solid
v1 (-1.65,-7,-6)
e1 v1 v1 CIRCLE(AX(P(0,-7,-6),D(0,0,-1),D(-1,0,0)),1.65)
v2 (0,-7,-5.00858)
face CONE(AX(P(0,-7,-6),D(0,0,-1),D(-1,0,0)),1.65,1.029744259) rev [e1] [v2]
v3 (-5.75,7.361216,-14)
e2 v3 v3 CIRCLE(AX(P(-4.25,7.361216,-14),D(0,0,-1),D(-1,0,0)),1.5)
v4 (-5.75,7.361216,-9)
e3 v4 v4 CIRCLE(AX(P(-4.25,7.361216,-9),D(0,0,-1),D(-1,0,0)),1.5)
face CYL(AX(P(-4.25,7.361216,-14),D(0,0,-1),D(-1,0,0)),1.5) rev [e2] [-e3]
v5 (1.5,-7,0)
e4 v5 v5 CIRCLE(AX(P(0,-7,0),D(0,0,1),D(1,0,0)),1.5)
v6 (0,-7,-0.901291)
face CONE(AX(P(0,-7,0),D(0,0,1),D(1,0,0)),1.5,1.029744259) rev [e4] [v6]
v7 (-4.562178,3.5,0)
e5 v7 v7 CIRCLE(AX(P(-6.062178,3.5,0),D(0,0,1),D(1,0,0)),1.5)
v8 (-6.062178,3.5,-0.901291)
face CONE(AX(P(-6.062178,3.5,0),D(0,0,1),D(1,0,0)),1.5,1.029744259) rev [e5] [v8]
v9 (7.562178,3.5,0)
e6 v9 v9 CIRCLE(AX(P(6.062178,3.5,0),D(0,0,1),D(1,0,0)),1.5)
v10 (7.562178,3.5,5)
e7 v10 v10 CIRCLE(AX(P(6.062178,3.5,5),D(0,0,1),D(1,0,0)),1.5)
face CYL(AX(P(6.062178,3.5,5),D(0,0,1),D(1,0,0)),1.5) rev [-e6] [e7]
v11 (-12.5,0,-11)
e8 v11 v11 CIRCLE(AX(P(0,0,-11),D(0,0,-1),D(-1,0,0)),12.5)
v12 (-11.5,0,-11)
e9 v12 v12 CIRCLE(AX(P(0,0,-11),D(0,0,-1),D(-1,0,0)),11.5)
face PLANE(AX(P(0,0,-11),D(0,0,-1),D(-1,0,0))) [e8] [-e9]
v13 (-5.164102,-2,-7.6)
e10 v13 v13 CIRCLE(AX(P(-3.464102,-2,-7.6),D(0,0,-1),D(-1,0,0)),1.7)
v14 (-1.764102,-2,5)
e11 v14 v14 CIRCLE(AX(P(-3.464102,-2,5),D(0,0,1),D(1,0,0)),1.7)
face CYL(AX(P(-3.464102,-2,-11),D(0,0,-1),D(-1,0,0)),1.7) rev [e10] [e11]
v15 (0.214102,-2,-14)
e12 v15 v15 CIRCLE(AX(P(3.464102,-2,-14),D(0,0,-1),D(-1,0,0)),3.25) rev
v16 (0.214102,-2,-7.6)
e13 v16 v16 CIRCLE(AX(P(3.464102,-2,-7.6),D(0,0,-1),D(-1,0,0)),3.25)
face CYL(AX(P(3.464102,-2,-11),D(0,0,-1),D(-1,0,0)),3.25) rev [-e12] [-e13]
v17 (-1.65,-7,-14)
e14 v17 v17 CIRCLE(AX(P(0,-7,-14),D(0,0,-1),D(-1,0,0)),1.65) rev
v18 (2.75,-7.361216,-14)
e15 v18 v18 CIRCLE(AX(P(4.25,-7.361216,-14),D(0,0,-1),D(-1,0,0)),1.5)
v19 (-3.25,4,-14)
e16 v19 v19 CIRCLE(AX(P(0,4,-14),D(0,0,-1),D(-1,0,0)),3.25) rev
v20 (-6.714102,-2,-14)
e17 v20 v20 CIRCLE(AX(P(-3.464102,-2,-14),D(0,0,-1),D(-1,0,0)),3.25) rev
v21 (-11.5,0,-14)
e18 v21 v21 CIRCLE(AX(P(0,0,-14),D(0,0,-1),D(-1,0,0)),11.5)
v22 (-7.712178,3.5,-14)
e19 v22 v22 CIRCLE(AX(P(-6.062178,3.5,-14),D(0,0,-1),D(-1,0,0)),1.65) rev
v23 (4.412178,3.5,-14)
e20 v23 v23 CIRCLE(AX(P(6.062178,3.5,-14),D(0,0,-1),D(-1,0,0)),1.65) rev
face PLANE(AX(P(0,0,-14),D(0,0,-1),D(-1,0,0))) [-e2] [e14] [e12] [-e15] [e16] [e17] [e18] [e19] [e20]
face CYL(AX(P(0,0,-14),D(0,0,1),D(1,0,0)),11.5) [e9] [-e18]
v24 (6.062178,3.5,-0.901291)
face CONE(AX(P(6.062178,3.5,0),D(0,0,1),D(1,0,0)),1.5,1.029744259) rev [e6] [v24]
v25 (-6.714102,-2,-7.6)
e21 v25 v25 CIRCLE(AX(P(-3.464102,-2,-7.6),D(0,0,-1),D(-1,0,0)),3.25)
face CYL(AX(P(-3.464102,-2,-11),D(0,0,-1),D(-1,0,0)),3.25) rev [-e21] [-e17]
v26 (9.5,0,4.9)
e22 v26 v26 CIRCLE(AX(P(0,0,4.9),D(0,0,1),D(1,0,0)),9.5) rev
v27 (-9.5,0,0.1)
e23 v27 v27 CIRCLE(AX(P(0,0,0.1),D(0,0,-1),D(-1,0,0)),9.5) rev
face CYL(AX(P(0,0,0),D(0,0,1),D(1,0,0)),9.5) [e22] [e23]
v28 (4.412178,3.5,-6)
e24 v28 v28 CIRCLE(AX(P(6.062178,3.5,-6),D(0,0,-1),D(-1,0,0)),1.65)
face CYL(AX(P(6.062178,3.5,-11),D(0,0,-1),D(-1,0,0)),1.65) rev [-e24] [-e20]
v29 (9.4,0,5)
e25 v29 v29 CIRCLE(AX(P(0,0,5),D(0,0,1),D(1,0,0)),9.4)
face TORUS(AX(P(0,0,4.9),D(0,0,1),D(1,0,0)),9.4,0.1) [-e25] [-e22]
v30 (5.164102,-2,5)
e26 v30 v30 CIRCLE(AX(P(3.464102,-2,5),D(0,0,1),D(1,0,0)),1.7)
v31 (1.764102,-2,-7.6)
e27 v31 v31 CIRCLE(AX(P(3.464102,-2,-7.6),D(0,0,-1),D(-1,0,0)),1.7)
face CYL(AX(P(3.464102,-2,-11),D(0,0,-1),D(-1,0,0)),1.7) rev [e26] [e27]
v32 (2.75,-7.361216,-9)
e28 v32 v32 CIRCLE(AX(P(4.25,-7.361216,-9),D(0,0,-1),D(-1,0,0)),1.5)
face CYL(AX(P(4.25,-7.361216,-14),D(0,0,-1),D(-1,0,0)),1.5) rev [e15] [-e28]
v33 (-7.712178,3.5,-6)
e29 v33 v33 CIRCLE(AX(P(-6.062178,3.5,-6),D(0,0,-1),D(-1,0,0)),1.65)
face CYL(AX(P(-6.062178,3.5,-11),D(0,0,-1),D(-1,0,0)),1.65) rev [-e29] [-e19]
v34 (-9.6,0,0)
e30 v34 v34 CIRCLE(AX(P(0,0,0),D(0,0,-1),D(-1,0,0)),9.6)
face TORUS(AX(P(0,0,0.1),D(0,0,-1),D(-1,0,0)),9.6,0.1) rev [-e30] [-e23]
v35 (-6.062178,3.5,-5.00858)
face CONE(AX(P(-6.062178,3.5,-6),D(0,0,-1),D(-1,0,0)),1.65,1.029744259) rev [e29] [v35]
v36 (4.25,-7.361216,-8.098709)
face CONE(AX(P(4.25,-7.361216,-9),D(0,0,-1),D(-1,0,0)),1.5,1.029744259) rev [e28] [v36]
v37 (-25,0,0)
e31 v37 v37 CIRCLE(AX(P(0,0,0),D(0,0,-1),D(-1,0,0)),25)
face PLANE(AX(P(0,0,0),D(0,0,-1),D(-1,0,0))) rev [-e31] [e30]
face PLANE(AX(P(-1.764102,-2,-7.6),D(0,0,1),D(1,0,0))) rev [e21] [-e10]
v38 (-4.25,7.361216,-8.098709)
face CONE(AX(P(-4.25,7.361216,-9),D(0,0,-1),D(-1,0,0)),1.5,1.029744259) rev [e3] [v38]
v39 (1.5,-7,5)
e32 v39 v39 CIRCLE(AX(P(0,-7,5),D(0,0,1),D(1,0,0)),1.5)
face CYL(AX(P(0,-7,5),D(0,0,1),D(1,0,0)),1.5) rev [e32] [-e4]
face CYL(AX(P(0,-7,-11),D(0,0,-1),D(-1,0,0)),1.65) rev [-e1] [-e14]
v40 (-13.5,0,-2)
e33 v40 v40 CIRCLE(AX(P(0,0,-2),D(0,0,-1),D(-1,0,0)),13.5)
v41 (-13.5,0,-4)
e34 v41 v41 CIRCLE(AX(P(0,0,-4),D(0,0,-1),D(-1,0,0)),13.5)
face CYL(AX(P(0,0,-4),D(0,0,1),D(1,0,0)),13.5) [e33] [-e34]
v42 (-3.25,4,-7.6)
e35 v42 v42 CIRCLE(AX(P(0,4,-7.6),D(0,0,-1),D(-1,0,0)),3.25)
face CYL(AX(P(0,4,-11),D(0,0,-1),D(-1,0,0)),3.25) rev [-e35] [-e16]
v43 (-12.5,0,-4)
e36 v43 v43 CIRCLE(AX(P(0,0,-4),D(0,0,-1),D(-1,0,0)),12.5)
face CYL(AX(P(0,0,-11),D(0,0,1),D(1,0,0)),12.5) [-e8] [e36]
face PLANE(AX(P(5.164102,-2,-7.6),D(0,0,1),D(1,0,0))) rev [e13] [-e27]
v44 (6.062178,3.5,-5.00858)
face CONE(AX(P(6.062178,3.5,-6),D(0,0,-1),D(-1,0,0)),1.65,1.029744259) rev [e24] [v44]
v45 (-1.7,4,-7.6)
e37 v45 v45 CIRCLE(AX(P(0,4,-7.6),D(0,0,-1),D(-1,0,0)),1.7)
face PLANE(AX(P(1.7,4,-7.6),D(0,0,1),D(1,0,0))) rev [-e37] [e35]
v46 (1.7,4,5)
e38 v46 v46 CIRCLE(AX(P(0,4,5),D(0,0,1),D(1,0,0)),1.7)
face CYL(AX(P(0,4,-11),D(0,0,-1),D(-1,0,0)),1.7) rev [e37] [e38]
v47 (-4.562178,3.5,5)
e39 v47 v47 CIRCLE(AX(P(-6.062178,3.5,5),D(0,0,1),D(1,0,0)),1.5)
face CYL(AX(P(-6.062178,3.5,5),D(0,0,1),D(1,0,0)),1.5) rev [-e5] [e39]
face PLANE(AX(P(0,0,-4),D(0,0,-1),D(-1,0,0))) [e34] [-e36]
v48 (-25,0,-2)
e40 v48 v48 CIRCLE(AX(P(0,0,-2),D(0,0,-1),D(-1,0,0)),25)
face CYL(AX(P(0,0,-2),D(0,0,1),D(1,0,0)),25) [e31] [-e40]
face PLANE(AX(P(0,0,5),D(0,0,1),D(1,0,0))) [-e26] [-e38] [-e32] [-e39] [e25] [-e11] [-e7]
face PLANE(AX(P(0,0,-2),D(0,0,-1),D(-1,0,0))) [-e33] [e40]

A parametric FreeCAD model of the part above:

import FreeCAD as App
import Part
import Sketcher

V = App.Vector
Q = App.Units.Quantity


def edges_at(feature, points):
    """Names of the edges that pass closest to the given points."""
    edges = feature.Shape.Edges
    near = lambda p: min(range(len(edges)), key=lambda i: edges[i].distToShape(Part.Vertex(*p))[0])
    return sorted({f"Edge{near(p) + 1}" for p in points})


def add_polygon(sketch, points):
    """Adds a closed chain of lines whose ends are joined by coincident constraints."""
    first, n = sketch.GeometryCount, len(points)
    for a, b in zip(points, points[1:] + points[:1]):
        sketch.addGeometry(Part.LineSegment(App.Vector(*a, 0), App.Vector(*b, 0)), False)
    for i in range(n):
        sketch.addConstraint(Sketcher.Constraint("Coincident", first + i, 2, first + (i + 1) % n, 1))

doc = App.newDocument("Part")
body = doc.addObject("PartDesign::Body", "Body")

# Sketch on XY plane
sketch1 = doc.addObject("Sketcher::SketchObject", "Sketch")
body.addObject(sketch1)
sketch1.AttachmentSupport = (doc.XY_Plane, [""])
sketch1.MapMode = "FlatFace"
sketch1.addGeometry([
    Part.Circle(V(0, 0, 0), V(0, 0, 1), 25),
    Part.Circle(V(0, 0, 0), V(0, 0, 1), 10),
], False)
sketch1.addConstraint([
    Sketcher.Constraint("Coincident", 0, 3, -1, 1),
    Sketcher.Constraint("Coincident", 1, 3, -1, 1),
    Sketcher.Constraint("Diameter", 0, Q("50 mm")),
    Sketcher.Constraint("Diameter", 1, Q("20 mm")),
])
pad1 = doc.addObject("PartDesign::Pad", "Pad")
body.addObject(pad1)
pad1.Profile = sketch1
pad1.Length = 2
pad1.Reversed = True

# Sketch on XY plane
sketch2 = doc.addObject("Sketcher::SketchObject", "Sketch001")
body.addObject(sketch2)
sketch2.AttachmentSupport = (doc.XY_Plane, [""])
sketch2.MapMode = "FlatFace"
sketch2.AttachmentOffset = App.Placement(V(0, 0, -2), App.Rotation())
sketch2.addGeometry(Part.Circle(V(0, 0, 0), V(0, 0, 1), 14), False)
sketch2.addConstraint([
    Sketcher.Constraint("Coincident", 0, 3, -1, 1),
    Sketcher.Constraint("Diameter", 0, Q("27 mm")),
])
pad2 = doc.addObject("PartDesign::Pad", "Pad001")
body.addObject(pad2)
pad2.Profile = sketch2
pad2.Length = 2
pad2.Reversed = True

# Sketch on XY plane
sketch3 = doc.addObject("Sketcher::SketchObject", "Sketch002")
body.addObject(sketch3)
sketch3.AttachmentSupport = (doc.XY_Plane, [""])
sketch3.MapMode = "FlatFace"
sketch3.AttachmentOffset = App.Placement(V(0, 0, -4), App.Rotation())
sketch3.addGeometry(Part.Circle(V(0, 0, 0), V(0, 0, 1), 12), False)
sketch3.addConstraint([
    Sketcher.Constraint("Coincident", 0, 3, -1, 1),
    Sketcher.Constraint("Diameter", 0, Q("25 mm")),
])
pad3 = doc.addObject("PartDesign::Pad", "Pad002")
body.addObject(pad3)
pad3.Profile = sketch3
pad3.Length = 7
pad3.Reversed = True

# Sketch on XY plane
sketch4 = doc.addObject("Sketcher::SketchObject", "Sketch003")
body.addObject(sketch4)
sketch4.AttachmentSupport = (doc.XY_Plane, [""])
sketch4.MapMode = "FlatFace"
sketch4.AttachmentOffset = App.Placement(V(0, 0, -11), App.Rotation())
sketch4.addGeometry(Part.Circle(V(0, 4, 0), V(0, 0, 1), 1.7), False)
sketch4.addConstraint([
    Sketcher.Constraint("PointOnObject", 0, 3, -2),
    Sketcher.Constraint("Diameter", 0, Q("3.4 mm")),
    Sketcher.Constraint("DistanceY", -1, 1, 0, 3, Q("4 mm")),
])
doc.recompute()
hole = doc.addObject("PartDesign::Hole", "Hole")
body.addObject(hole)
hole.Profile = sketch4
hole.ThreadType = "None"
hole.Diameter = 3.4
hole.DepthType = "ThroughAll"
hole.HoleCutType = "Counterbore"
hole.HoleCutDiameter = 6.5
hole.HoleCutDepth = 3.4
hole.Reversed = True
doc.recompute()

polarpattern = doc.addObject("PartDesign::PolarPattern", "PolarPattern")
body.addObject(polarpattern)
polarpattern.Originals = [hole]
polarpattern.Axis = (doc.Z_Axis, [""])
polarpattern.Angle = 360
polarpattern.Occurrences = 3
body.Tip = polarpattern

# Sketch on YZ plane
sketch5 = doc.addObject("Sketcher::SketchObject", "Sketch004")
body.addObject(sketch5)
sketch5.AttachmentSupport = (doc.YZ_Plane, [""])
sketch5.MapMode = "FlatFace"
add_polygon(sketch5, [(-7, -5), (-7, -11), (-5.3, -11), (-5.3, -6)])  # lines 0-3
sketch5.addGeometry(Part.LineSegment(V(-7, -11, 0), V(-7, -5, 0)), True)  # axis
sketch5.addConstraint([
    Sketcher.Constraint("Vertical", 0),
    Sketcher.Constraint("Horizontal", 1),
    Sketcher.Constraint("Vertical", 2),
    Sketcher.Constraint("Vertical", 4),
    Sketcher.Constraint("Coincident", 4, 1, 0, 2),
    Sketcher.Constraint("Equal", 0, 4),
    Sketcher.Constraint("DistanceY", 2, 1, 2, 2, Q("5 mm")),
    Sketcher.Constraint("Angle", 3, Q("149 deg")),
    Sketcher.Constraint("DistanceX", 0, 2, -1, 1, Q("7 mm")),
    Sketcher.Constraint("DistanceY", 0, 2, -1, 1, Q("11 mm")),
    Sketcher.Constraint("DistanceX", 1, 1, 1, 2, Q("1.65 mm")),
])
groove = doc.addObject("PartDesign::Groove", "Groove")
body.addObject(groove)
groove.Profile = sketch5
groove.ReferenceAxis = (sketch5, ["Axis0"])
groove.Angle = 360
doc.recompute()

polarpattern2 = doc.addObject("PartDesign::PolarPattern", "PolarPattern001")
body.addObject(polarpattern2)
polarpattern2.Originals = [groove]
polarpattern2.Axis = (doc.Z_Axis, [""])
polarpattern2.Angle = 360
polarpattern2.Occurrences = 3
body.Tip = polarpattern2

# Sketch on XY plane
sketch6 = doc.addObject("Sketcher::SketchObject", "Sketch005")
body.addObject(sketch6)
sketch6.AttachmentSupport = (doc.XY_Plane, [""])
sketch6.MapMode = "FlatFace"
sketch6.AttachmentOffset = App.Placement(V(0, 0, -14), App.Rotation())
sketch6.addGeometry([
    Part.Circle(V(0, 0, 0), V(0, 0, 1), 11.5),  # 0
    Part.Circle(V(3.5, -2, 0), V(0, 0, 1), 3.2),  # 1
    Part.Circle(V(0, -7, 0), V(0, 0, 1), 1.6),  # 2
    Part.Circle(V(-3.5, -2, 0), V(0, 0, 1), 3.2),  # 3
    Part.Circle(V(6.1, 3.5, 0), V(0, 0, 1), 1.6),  # 4
    Part.Circle(V(0, 4, 0), V(0, 0, 1), 3.2),  # 5
    Part.Circle(V(-6.1, 3.5, 0), V(0, 0, 1), 1.6),  # 6
], False)
sketch6.addConstraint([
    Sketcher.Constraint("Coincident", 0, 3, -1, 1),
    Sketcher.Constraint("Equal", 1, 3),
    Sketcher.Constraint("Equal", 2, 4),
    Sketcher.Constraint("Equal", 3, 5),
    Sketcher.Constraint("Equal", 4, 6),
    Sketcher.Constraint("Symmetric", 1, 3, 3, 3, -2),
    Sketcher.Constraint("Symmetric", 4, 3, 6, 3, -2),
    Sketcher.Constraint("PointOnObject", 2, 3, -2),
    Sketcher.Constraint("PointOnObject", 5, 3, -2),
    Sketcher.Constraint("Diameter", 0, Q("23 mm")),
    Sketcher.Constraint("Diameter", 1, Q("6.5 mm")),
    Sketcher.Constraint("Diameter", 2, Q("3.3 mm")),
    Sketcher.Constraint("DistanceY", 1, 3, -1, 1, Q("2 mm")),
    Sketcher.Constraint("DistanceY", 2, 3, -1, 1, Q("7 mm")),
    Sketcher.Constraint("DistanceY", -1, 1, 5, 3, Q("4 mm")),
    Sketcher.Constraint("DistanceY", -1, 1, 4, 3, Q("3.5 mm")),
    Sketcher.Constraint("DistanceX", -1, 1, 1, 3, Q("3.464102 mm")),
    Sketcher.Constraint("DistanceX", 3, 3, 4, 3, Q("9.526279 mm")),
])
pad4 = doc.addObject("PartDesign::Pad", "Pad003")
body.addObject(pad4)
pad4.Profile = sketch6
pad4.Length = 3

# Sketch on XY plane
sketch7 = doc.addObject("Sketcher::SketchObject", "Sketch006")
body.addObject(sketch7)
sketch7.AttachmentSupport = (doc.XY_Plane, [""])
sketch7.MapMode = "FlatFace"
sketch7.AttachmentOffset = App.Placement(V(0, 0, 5), App.Rotation())
sketch7.addGeometry([
    Part.Circle(V(0, 0, 0), V(0, 0, 1), 10),
    Part.Circle(V(0, 4, 0), V(0, 0, 1), 1.7),
    Part.Circle(V(3.5, -2, 0), V(0, 0, 1), 1.7),
    Part.Circle(V(-3.5, -2, 0), V(0, 0, 1), 1.7),
], False)
sketch7.addConstraint([
    Sketcher.Constraint("Coincident", 0, 3, -1, 1),
    Sketcher.Constraint("Equal", 1, 2),
    Sketcher.Constraint("Equal", 2, 3),
    Sketcher.Constraint("Symmetric", 2, 3, 3, 3, -2),
    Sketcher.Constraint("PointOnObject", 1, 3, -2),
    Sketcher.Constraint("Diameter", 0, Q("20 mm")),
    Sketcher.Constraint("Diameter", 1, Q("3.4 mm")),
    Sketcher.Constraint("DistanceY", -1, 1, 1, 3, Q("4 mm")),
    Sketcher.Constraint("DistanceY", 2, 3, -1, 1, Q("2 mm")),
    Sketcher.Constraint("DistanceX", -1, 1, 2, 3, Q("3.464102 mm")),
])
pad5 = doc.addObject("PartDesign::Pad", "Pad004")
body.addObject(pad5)
pad5.Profile = sketch7
pad5.Length = 7
pad5.Reversed = True

# Sketch on XY plane
sketch8 = doc.addObject("Sketcher::SketchObject", "Sketch007")
body.addObject(sketch8)
sketch8.AttachmentSupport = (doc.XY_Plane, [""])
sketch8.MapMode = "FlatFace"
sketch8.AttachmentOffset = App.Placement(V(0, 0, 5), App.Rotation())
sketch8.addGeometry([
    Part.Circle(V(0, 0, 0), V(0, 0, 1), 10),
    Part.Circle(V(0, 0, 0), V(0, 0, 1), 10),
], False)
sketch8.addConstraint([
    Sketcher.Constraint("Coincident", 0, 3, -1, 1),
    Sketcher.Constraint("Coincident", 1, 3, -1, 1),
    Sketcher.Constraint("Diameter", 0, Q("20 mm")),
    Sketcher.Constraint("Diameter", 1, Q("19 mm")),
])
pocket1 = doc.addObject("PartDesign::Pocket", "Pocket")
body.addObject(pocket1)
pocket1.Profile = sketch8
pocket1.Length = 5
doc.recompute()

fillet = doc.addObject("PartDesign::Fillet", "Fillet")
body.addObject(fillet)
fillet.Base = (pocket1, edges_at(pocket1, [(-9.5, 0, 0), (-9.5, 0, 5)]))
fillet.Radius = 0.1

# Sketch on YZ plane
sketch9 = doc.addObject("Sketcher::SketchObject", "Sketch008")
body.addObject(sketch9)
sketch9.AttachmentSupport = (doc.YZ_Plane, [""])
sketch9.MapMode = "FlatFace"
add_polygon(sketch9, [(-7, -0.9), (-7, 5), (-8.5, 5), (-8.5, 0)])  # lines 0-3
sketch9.addGeometry(Part.LineSegment(V(-7, 5, 0), V(-7, -0.9, 0)), True)  # axis
sketch9.addConstraint([
    Sketcher.Constraint("Vertical", 0),
    Sketcher.Constraint("Horizontal", 1),
    Sketcher.Constraint("Vertical", 2),
    Sketcher.Constraint("Vertical", 4),
    Sketcher.Constraint("Coincident", 4, 1, 0, 2),
    Sketcher.Constraint("PointOnObject", 2, 2, -1),
    Sketcher.Constraint("Equal", 0, 4),
    Sketcher.Constraint("DistanceY", 2, 2, 2, 1, Q("5 mm")),
    Sketcher.Constraint("Angle", 3, Q("-31 deg")),
    Sketcher.Constraint("DistanceX", 1, 2, 1, 1, Q("1.5 mm")),
    Sketcher.Constraint("DistanceX", 0, 2, -1, 1, Q("7 mm")),
])
groove2 = doc.addObject("PartDesign::Groove", "Groove001")
body.addObject(groove2)
groove2.Profile = sketch9
groove2.ReferenceAxis = (sketch9, ["Axis0"])
groove2.Angle = 360
doc.recompute()

polarpattern3 = doc.addObject("PartDesign::PolarPattern", "PolarPattern002")
body.addObject(polarpattern3)
polarpattern3.Originals = [groove2]
polarpattern3.Axis = (doc.Z_Axis, [""])
polarpattern3.Angle = 360
polarpattern3.Occurrences = 3
body.Tip = polarpattern3

# Sketch on YZ plane
sketch10 = doc.addObject("Sketcher::SketchObject", "Sketch009")
body.addObject(sketch10)
sketch10.AttachmentSupport = (doc.YZ_Plane, [""])
sketch10.MapMode = "FlatFace"
sketch10.AttachmentOffset = App.Placement(V(0, 0, -4.25), App.Rotation())
add_polygon(sketch10, [(7.4, -8.1), (7.4, -14), (8.9, -14), (8.9, -9)])  # lines 0-3
sketch10.addGeometry(Part.LineSegment(V(7.4, -14, 0), V(7.4, -8.1, 0)), True)  # axis
sketch10.addConstraint([
    Sketcher.Constraint("Vertical", 0),
    Sketcher.Constraint("Horizontal", 1),
    Sketcher.Constraint("Vertical", 2),
    Sketcher.Constraint("Vertical", 4),
    Sketcher.Constraint("Coincident", 4, 1, 0, 2),
    Sketcher.Constraint("Equal", 0, 4),
    Sketcher.Constraint("DistanceY", 2, 1, 2, 2, Q("5 mm")),
    Sketcher.Constraint("Angle", 3, Q("149 deg")),
    Sketcher.Constraint("DistanceX", 1, 1, 1, 2, Q("1.5 mm")),
    Sketcher.Constraint("DistanceY", 0, 2, -1, 1, Q("14 mm")),
    Sketcher.Constraint("DistanceX", -1, 1, 0, 2, Q("7.361216 mm")),
])
groove3 = doc.addObject("PartDesign::Groove", "Groove002")
body.addObject(groove3)
groove3.Profile = sketch10
groove3.ReferenceAxis = (sketch10, ["Axis0"])
groove3.Angle = 360
doc.recompute()

polarpattern4 = doc.addObject("PartDesign::PolarPattern", "PolarPattern003")
body.addObject(polarpattern4)
polarpattern4.Originals = [groove3]
polarpattern4.Axis = (doc.Z_Axis, [""])
polarpattern4.Angle = 360
polarpattern4.Occurrences = 2
body.Tip = polarpattern4

doc.recompute()
